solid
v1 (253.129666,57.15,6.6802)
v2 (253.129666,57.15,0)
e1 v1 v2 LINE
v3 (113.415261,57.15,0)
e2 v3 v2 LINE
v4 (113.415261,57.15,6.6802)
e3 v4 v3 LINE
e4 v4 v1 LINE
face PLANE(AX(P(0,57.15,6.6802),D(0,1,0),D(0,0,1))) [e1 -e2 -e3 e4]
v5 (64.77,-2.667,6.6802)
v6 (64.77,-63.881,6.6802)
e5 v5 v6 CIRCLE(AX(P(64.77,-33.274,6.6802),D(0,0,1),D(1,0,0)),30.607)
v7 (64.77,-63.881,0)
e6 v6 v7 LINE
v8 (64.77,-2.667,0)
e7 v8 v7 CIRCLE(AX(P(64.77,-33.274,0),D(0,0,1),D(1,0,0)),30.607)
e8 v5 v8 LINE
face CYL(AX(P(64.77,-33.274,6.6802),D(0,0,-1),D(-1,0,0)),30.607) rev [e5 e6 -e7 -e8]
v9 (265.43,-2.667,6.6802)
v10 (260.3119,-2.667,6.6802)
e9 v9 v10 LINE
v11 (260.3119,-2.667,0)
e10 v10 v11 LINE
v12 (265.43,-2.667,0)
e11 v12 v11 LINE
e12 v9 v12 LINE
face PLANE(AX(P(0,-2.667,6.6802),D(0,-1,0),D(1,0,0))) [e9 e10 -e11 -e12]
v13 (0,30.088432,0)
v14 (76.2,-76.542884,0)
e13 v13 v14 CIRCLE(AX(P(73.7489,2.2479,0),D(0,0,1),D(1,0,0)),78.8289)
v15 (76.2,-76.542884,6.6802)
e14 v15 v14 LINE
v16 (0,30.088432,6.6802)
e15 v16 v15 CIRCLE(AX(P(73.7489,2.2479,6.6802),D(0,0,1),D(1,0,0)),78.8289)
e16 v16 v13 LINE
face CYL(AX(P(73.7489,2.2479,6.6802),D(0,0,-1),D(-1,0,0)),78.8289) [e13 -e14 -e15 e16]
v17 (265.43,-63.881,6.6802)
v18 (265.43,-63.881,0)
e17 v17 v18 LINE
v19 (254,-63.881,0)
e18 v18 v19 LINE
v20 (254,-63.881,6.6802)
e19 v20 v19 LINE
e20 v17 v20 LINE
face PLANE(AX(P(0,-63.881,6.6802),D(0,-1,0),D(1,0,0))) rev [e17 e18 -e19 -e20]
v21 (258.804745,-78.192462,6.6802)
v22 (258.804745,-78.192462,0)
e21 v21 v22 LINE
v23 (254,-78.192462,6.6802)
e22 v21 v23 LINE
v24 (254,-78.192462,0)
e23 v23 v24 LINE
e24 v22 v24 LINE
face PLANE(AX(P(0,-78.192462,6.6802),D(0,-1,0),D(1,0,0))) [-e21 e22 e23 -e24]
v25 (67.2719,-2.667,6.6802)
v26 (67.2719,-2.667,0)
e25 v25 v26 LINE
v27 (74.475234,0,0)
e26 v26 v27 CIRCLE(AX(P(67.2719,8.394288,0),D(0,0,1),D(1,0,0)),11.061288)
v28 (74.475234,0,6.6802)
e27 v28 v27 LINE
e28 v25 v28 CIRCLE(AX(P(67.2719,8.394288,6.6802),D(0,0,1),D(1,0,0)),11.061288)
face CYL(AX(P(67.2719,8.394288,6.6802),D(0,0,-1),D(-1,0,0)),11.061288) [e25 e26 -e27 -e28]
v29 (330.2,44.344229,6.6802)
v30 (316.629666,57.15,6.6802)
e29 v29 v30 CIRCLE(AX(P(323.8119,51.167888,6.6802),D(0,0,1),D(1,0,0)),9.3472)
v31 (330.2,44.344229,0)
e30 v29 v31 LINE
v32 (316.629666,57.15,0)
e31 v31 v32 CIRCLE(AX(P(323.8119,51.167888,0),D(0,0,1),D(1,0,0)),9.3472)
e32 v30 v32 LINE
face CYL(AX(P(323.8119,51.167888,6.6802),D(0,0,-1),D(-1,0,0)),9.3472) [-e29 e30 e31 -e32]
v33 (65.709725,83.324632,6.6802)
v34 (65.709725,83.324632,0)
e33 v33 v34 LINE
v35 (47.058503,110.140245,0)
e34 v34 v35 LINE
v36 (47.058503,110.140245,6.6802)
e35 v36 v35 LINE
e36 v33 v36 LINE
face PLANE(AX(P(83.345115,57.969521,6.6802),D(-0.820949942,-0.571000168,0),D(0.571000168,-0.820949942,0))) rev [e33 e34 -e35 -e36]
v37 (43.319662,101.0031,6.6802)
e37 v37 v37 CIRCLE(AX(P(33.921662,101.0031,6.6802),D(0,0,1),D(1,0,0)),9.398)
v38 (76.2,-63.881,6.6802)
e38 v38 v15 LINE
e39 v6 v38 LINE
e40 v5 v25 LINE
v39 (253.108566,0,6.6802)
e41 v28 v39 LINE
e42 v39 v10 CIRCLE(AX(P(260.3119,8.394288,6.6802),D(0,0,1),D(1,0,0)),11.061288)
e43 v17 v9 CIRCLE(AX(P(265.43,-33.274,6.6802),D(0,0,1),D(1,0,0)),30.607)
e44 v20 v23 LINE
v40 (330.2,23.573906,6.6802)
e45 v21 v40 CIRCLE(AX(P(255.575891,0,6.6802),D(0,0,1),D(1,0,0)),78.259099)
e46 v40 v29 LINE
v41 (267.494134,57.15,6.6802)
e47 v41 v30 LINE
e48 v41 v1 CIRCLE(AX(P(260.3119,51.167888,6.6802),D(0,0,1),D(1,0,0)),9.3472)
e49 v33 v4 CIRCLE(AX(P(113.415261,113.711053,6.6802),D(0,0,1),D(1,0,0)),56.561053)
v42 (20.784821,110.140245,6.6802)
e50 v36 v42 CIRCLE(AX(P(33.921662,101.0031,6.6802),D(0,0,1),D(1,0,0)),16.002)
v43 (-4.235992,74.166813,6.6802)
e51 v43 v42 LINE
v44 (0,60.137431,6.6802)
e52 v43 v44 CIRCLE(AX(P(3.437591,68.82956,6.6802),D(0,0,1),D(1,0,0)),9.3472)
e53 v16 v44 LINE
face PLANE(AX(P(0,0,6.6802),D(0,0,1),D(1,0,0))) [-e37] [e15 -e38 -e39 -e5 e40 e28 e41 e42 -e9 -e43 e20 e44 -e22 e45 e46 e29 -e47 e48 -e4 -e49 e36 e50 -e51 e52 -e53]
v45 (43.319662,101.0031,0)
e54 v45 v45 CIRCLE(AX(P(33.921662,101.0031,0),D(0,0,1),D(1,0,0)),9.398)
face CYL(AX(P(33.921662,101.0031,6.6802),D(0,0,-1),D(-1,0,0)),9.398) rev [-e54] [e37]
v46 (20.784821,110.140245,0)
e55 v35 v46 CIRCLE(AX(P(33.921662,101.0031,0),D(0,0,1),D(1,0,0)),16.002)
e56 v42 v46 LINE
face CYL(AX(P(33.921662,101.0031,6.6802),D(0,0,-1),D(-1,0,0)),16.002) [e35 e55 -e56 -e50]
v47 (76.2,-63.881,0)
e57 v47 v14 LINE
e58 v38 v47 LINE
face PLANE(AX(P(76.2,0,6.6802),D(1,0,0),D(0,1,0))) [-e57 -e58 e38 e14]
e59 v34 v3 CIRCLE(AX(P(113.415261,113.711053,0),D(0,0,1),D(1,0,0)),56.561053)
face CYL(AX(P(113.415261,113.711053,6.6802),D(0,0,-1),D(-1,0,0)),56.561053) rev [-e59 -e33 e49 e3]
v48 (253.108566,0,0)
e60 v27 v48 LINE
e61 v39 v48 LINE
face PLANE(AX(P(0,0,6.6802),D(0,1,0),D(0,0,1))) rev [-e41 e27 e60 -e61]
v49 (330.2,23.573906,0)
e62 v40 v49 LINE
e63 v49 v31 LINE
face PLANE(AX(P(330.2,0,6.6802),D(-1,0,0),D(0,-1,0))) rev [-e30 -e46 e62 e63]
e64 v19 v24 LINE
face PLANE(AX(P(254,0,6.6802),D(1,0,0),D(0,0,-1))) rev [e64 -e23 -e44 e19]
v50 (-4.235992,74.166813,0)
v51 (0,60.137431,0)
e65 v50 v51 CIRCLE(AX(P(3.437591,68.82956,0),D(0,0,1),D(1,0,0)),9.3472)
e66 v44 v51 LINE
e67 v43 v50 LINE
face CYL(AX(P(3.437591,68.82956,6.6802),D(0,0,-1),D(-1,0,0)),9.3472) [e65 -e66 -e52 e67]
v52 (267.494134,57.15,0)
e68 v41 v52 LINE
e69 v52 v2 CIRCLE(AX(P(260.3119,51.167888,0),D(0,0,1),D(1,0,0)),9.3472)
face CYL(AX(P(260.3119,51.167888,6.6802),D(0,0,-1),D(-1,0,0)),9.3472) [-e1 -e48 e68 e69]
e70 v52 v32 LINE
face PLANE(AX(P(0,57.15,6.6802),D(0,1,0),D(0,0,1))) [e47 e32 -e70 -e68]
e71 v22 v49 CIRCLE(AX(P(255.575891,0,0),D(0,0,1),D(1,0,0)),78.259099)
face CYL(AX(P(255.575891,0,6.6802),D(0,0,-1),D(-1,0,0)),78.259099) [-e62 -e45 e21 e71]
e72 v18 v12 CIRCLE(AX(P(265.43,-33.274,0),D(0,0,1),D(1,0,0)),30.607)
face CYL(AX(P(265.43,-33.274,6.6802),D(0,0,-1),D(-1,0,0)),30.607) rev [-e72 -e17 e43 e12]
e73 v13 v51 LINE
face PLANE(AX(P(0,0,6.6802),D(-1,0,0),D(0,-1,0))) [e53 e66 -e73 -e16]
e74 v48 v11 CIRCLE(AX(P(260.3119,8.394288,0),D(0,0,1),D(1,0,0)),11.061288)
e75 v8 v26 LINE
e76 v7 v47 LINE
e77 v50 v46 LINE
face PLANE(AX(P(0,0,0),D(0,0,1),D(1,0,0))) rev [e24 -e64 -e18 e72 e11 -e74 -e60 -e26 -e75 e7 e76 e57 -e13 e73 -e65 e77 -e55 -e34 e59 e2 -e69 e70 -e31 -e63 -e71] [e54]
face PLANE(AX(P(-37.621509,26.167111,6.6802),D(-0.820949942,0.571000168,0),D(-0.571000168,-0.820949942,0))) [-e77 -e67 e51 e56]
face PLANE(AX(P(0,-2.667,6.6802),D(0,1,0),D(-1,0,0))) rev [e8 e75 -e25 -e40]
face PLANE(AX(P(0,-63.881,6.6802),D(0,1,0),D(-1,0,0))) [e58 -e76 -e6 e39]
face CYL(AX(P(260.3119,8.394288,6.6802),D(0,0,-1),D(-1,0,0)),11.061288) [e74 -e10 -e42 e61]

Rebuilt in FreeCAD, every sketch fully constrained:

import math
import FreeCAD as App
import Part
import Sketcher

V = App.Vector
Q = App.Units.Quantity

doc = App.newDocument("Part")
body = doc.addObject("PartDesign::Body", "Body")

sketch1 = body.newObject("Sketcher::SketchObject", "Sketch")
sketch1.AttachmentSupport = (doc.getObject("XY_Plane"), [""])
sketch1.MapMode = "FlatFace"
sketch1.addGeometry([
    Part.ArcOfCircle(Part.Circle(V(67.3, 8.4, 0), V(0, 0, 1), 11.1), math.radians(-90), math.radians(-49)),
    Part.LineSegment(V(74.5, 0, 0), V(253.1, 0, 0)),
    Part.ArcOfCircle(Part.Circle(V(260.3, 8.4, 0), V(0, 0, 1), 11.1), math.radians(-131), math.radians(-90)),
    Part.LineSegment(V(260.3, -2.7, 0), V(265.4, -2.7, 0)),
    Part.ArcOfCircle(Part.Circle(V(265.4, -33.3, 0), V(0, 0, 1), 30.6), math.radians(-90), math.radians(90)),
    Part.LineSegment(V(265.4, -63.9, 0), V(254, -63.9, 0)),
    Part.LineSegment(V(254, -63.9, 0), V(254, -78.2, 0)),
    Part.LineSegment(V(254, -78.2, 0), V(258.8, -78.2, 0)),
    Part.ArcOfCircle(Part.Circle(V(255.6, 0, 0), V(0, 0, 1), 78.3), math.radians(-88), math.radians(18)),
    Part.LineSegment(V(330.2, 23.6, 0), V(330.2, 44.3, 0)),
    Part.ArcOfCircle(Part.Circle(V(323.8, 51.2, 0), V(0, 0, 1), 9.3), math.radians(-47), math.radians(140)),
    Part.LineSegment(V(316.6, 57.1, 0), V(267.5, 57.1, 0)),
    Part.ArcOfCircle(Part.Circle(V(260.3, 51.2, 0), V(0, 0, 1), 9.3), math.radians(40), math.radians(140)),
    Part.LineSegment(V(253.1, 57.1, 0), V(113.4, 57.1, 0)),
    Part.ArcOfCircle(Part.Circle(V(113.4, 113.7, 0), V(0, 0, 1), 56.6), math.radians(-148), math.radians(-90)),
    Part.LineSegment(V(65.7, 83.3, 0), V(47.1, 110.1, 0)),
    Part.ArcOfCircle(Part.Circle(V(33.9, 101, 0), V(0, 0, 1), 16), math.radians(35), math.radians(145)),
    Part.LineSegment(V(20.8, 110.1, 0), V(2.1, 83.3, 0)),
    Part.LineSegment(V(2.1, 83.3, 0), V(-4.2, 74.2, 0)),
    Part.ArcOfCircle(Part.Circle(V(3.4, 68.8, 0), V(0, 0, 1), 9.3), math.radians(145), math.radians(248)),
    Part.LineSegment(V(0, 60.1, 0), V(0, 30.1, 0)),
    Part.ArcOfCircle(Part.Circle(V(73.7, 2.2, 0), V(0, 0, 1), 78.8), math.radians(159), math.radians(270)),
    Part.ArcOfCircle(Part.Circle(V(73.7, 2.2, 0), V(0, 0, 1), 78.8), math.radians(-90), math.radians(-88.22)),
    Part.LineSegment(V(76.2, -76.5, 0), V(76.2, -63.9, 0)),
    Part.LineSegment(V(76.2, -63.9, 0), V(64.8, -63.9, 0)),
    Part.ArcOfCircle(Part.Circle(V(64.8, -33.3, 0), V(0, 0, 1), 30.6), math.radians(90), math.radians(270)),
    Part.LineSegment(V(64.8, -2.7, 0), V(67.3, -2.7, 0)),
    Part.Circle(V(33.9, 101, 0), V(0, 0, 1), 9.4),
], False)
sketch1.addConstraint([
    Sketcher.Constraint("Coincident", 0, 2, 1, 1),
    Sketcher.Constraint("Coincident", 1, 2, 2, 1),
    Sketcher.Constraint("Tangent", 2, 2, 3, 1),
    Sketcher.Constraint("Tangent", 3, 2, 4, 2),
    Sketcher.Constraint("Tangent", 4, 1, 5, 1),
    Sketcher.Constraint("Coincident", 5, 2, 6, 1),
    Sketcher.Constraint("Coincident", 6, 2, 7, 1),
    Sketcher.Constraint("Coincident", 7, 2, 8, 1),
    Sketcher.Constraint("Coincident", 8, 2, 9, 1),
    Sketcher.Constraint("Coincident", 9, 2, 10, 1),
    Sketcher.Constraint("Coincident", 10, 2, 11, 1),
    Sketcher.Constraint("Coincident", 11, 2, 12, 1),
    Sketcher.Constraint("Coincident", 12, 2, 13, 1),
    Sketcher.Constraint("Tangent", 13, 2, 14, 2),
    Sketcher.Constraint("Coincident", 14, 1, 15, 1),
    Sketcher.Constraint("Tangent", 15, 2, 16, 1),
    Sketcher.Constraint("Tangent", 16, 2, 17, 1),
    Sketcher.Constraint("Coincident", 17, 2, 18, 1),
    Sketcher.Constraint("Tangent", 18, 2, 19, 1),
    Sketcher.Constraint("Coincident", 19, 2, 20, 1),
    Sketcher.Constraint("Coincident", 20, 2, 21, 1),
    Sketcher.Constraint("Tangent", 21, 2, 22, 1),
    Sketcher.Constraint("Coincident", 22, 2, 23, 1),
    Sketcher.Constraint("Coincident", 23, 2, 24, 1),
    Sketcher.Constraint("Tangent", 24, 2, 25, 2),
    Sketcher.Constraint("Tangent", 25, 1, 26, 1),
    Sketcher.Constraint("Tangent", 26, 2, 0, 1),
    Sketcher.Constraint("Horizontal", 1),
    Sketcher.Constraint("Horizontal", 3),
    Sketcher.Constraint("Horizontal", 5),
    Sketcher.Constraint("Vertical", 6),
    Sketcher.Constraint("Horizontal", 7),
    Sketcher.Constraint("Vertical", 9),
    Sketcher.Constraint("Horizontal", 11),
    Sketcher.Constraint("Horizontal", 13),
    Sketcher.Constraint("Vertical", 20),
    Sketcher.Constraint("Vertical", 23),
    Sketcher.Constraint("Horizontal", 24),
    Sketcher.Constraint("Horizontal", 26),
    Sketcher.Constraint("Coincident", 27, 3, 16, 3),
    Sketcher.Constraint("Equal", 0, 2),
    Sketcher.Constraint("Equal", 10, 12),
    Sketcher.Constraint("Equal", 12, 19),
    Sketcher.Constraint("Equal", 4, 25),
    Sketcher.Constraint("PointOnObject", 8, 3, -1),
    Sketcher.Constraint("PointOnObject", 0, 2, -1),
    Sketcher.Constraint("PointOnObject", 19, 2, -2),
    Sketcher.Constraint("Parallel", 17, 18),
    Sketcher.Constraint("Horizontal", 0, 3, 2, 3),
    Sketcher.Constraint("Horizontal", 10, 3, 12, 3),
    Sketcher.Constraint("Horizontal", 11, 2, 12, 2),
    Sketcher.Constraint("Horizontal", 15, 2, 16, 2),
    Sketcher.Constraint("Horizontal", 14, 1, 17, 2),
    Sketcher.Constraint("Vertical", 2, 3, 12, 3),
    Sketcher.Constraint("Vertical", 22, 3, 21, 2),
    Sketcher.Constraint("Equal", 5, 24),
    Sketcher.Constraint("Diameter", 27, Q("0.74 in")),
    Sketcher.Constraint("Radius", 16, Q("0.63 in")),
    Sketcher.Constraint("DistanceX", -1, 1, 5, 2, Q("10 in")),
    Sketcher.Constraint("DistanceX", -1, 1, 8, 2, Q("13 in")),
    Sketcher.Constraint("DistanceX", -1, 1, 22, 2, Q("3 in")),
    Sketcher.Constraint("Radius", 4, Q("1.205 in")),
    Sketcher.Constraint("Radius", 10, Q("0.368 in")),
    Sketcher.Constraint("DistanceX", 5, 2, 5, 1, Q("0.45 in")),
    Sketcher.Constraint("Radius", 21, Q("3.1035 in")),
    Sketcher.Constraint("Radius", 22, Q("3.1034999 in")),
    Sketcher.Constraint("DistanceX", 0, 3, 2, 3, Q("7.6 in")),
    Sketcher.Constraint("DistanceX", 2, 3, 10, 3, Q("2.5 in")),
    Sketcher.Constraint("DistanceY", 21, 2, 23, 2, Q("0.5 in")),
    Sketcher.Constraint("DistanceY", 4, 3, -1, 1, Q("1.31 in")),
    Sketcher.Constraint("DistanceY", -1, 1, 10, 2, Q("2.25 in")),
    Sketcher.Constraint("Angle", 15, Q("124.82 deg")),
    Sketcher.Constraint("Radius", 8, Q("78.259099 mm")),
    Sketcher.Constraint("DistanceX", 3, 1, 3, 2, Q("0.2015 in")),
    Sketcher.Constraint("DistanceX", -1, 1, 17, 2, Q("0.084 in")),
    Sketcher.Constraint("Radius", 0, Q("11.061289 mm")),
    Sketcher.Constraint("DistanceY", 2, 3, 10, 3, Q("1.684 in")),
    Sketcher.Constraint("DistanceX", 0, 3, 21, 3, Q("0.255 in")),
    Sketcher.Constraint("DistanceY", 21, 3, 16, 3, Q("3.888 in")),
    Sketcher.Constraint("DistanceY", 20, 2, 20, 1, Q("30.048999 mm")),
    Sketcher.Constraint("DistanceX", -1, 1, 16, 2, Q("0.8183001 in")),
    Sketcher.Constraint("Radius", 14, Q("56.561053 mm")),
    Sketcher.Constraint("DistanceX", 19, 3, 8, 3, Q("252.1383 mm")),
    Sketcher.Constraint("DistanceX", 7, 1, 7, 2, Q("4.804745 mm")),
])
pad1 = body.newObject("PartDesign::Pad", "Pad")
pad1.Profile = sketch1
pad1.Length = Q("0.263 in")

doc.recompute()
